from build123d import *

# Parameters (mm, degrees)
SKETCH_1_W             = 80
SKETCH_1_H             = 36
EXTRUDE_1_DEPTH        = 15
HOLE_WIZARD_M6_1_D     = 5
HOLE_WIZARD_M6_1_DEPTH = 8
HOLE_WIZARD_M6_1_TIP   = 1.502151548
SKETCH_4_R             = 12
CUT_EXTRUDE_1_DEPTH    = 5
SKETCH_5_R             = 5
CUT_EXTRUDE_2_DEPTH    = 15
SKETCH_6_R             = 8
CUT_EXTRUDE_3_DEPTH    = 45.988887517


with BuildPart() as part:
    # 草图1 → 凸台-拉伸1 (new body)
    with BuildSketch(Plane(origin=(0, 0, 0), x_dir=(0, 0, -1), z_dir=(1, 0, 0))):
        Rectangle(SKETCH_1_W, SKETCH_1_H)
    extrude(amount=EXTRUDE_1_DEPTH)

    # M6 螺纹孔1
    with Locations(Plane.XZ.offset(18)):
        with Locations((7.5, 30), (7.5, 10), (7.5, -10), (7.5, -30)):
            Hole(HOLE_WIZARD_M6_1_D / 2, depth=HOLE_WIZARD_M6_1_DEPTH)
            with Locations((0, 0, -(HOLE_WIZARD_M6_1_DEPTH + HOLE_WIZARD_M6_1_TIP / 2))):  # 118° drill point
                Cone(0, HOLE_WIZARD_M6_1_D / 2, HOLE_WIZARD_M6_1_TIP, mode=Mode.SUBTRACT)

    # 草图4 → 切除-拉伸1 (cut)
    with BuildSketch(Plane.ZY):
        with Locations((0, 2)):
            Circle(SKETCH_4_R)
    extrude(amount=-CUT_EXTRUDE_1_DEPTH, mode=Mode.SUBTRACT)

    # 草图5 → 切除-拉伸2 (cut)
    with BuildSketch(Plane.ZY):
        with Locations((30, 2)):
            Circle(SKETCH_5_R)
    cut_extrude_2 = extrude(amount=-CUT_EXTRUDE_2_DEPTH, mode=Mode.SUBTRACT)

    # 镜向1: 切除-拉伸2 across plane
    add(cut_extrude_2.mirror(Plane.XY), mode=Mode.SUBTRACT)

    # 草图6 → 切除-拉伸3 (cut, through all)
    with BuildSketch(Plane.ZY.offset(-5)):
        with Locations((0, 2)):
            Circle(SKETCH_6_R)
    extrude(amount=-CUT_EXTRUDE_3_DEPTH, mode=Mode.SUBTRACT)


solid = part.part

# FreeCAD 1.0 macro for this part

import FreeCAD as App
import Part
import Sketcher

V = App.Vector
Q = App.Units.Quantity


def add_polygon(sketch, points):
    """Adds a closed chain of lines whose ends are joined by coincident constraints."""
    first, n = sketch.GeometryCount, len(points)
    for a, b in zip(points, points[1:] + points[:1]):
        sketch.addGeometry(Part.LineSegment(App.Vector(*a, 0), App.Vector(*b, 0)), False)
    for i in range(n):
        sketch.addConstraint(Sketcher.Constraint("Coincident", first + i, 2, first + (i + 1) % n, 1))

doc = App.newDocument("Part")
body = doc.addObject("PartDesign::Body", "Body")

# Sketch on YZ plane
sketch1 = body.newObject("Sketcher::SketchObject", "Sketch")
sketch1.AttachmentSupport = (doc.getObject("YZ_Plane"), [""])
sketch1.MapMode = "FlatFace"
add_polygon(sketch1, [(18, 40), (-18, 40), (-18, -40), (18, -40)])  # lines 0-3
sketch1.addConstraint(Sketcher.Constraint("Horizontal", 0))
sketch1.addConstraint(Sketcher.Constraint("Vertical", 1))
sketch1.addConstraint(Sketcher.Constraint("Horizontal", 2))
sketch1.addConstraint(Sketcher.Constraint("Vertical", 3))
sketch1.addConstraint(Sketcher.Constraint("Symmetric", 0, 2, 2, 2, -1, 1))
sketch1.addConstraint(Sketcher.Constraint("DistanceX", 0, 2, 0, 1, Q("36 mm")))
sketch1.addConstraint(Sketcher.Constraint("DistanceY", 1, 2, 1, 1, Q("80 mm")))
pad1 = body.newObject("PartDesign::Pad", "Pad")
pad1.Profile = sketch1
pad1.Length = 15

# Sketch on XZ plane
sketch2 = body.newObject("Sketcher::SketchObject", "Sketch001")
sketch2.AttachmentSupport = (doc.getObject("XZ_Plane"), [""])
sketch2.MapMode = "FlatFace"
sketch2.AttachmentOffset = App.Placement(V(0, 0, 18), App.Rotation())
sketch2.addGeometry(Part.Circle(V(7.5, 30, 0), V(0, 0, 1), 2.5), False)
sketch2.addGeometry(Part.Circle(V(7.5, 10, 0), V(0, 0, 1), 2.5), False)
sketch2.addGeometry(Part.Circle(V(7.5, -10, 0), V(0, 0, 1), 2.5), False)
sketch2.addGeometry(Part.Circle(V(7.5, -30, 0), V(0, 0, 1), 2.5), False)
sketch2.addConstraint(Sketcher.Constraint("Equal", 0, 1))
sketch2.addConstraint(Sketcher.Constraint("Equal", 1, 2))
sketch2.addConstraint(Sketcher.Constraint("Equal", 2, 3))
sketch2.addConstraint(Sketcher.Constraint("Symmetric", 1, 3, 2, 3, -1))
sketch2.addConstraint(Sketcher.Constraint("Symmetric", 0, 3, 3, 3, -1))
sketch2.addConstraint(Sketcher.Constraint("Vertical", 0, 3, 1, 3))
sketch2.addConstraint(Sketcher.Constraint("Diameter", 0, Q("5 mm")))
sketch2.addConstraint(Sketcher.Constraint("DistanceY", -1, 1, 0, 3, Q("30 mm")))
sketch2.addConstraint(Sketcher.Constraint("DistanceY", -1, 1, 1, 3, Q("10 mm")))
sketch2.addConstraint(Sketcher.Constraint("DistanceX", -1, 1, 0, 3, Q("7.5 mm")))
doc.recompute()
hole = body.newObject("PartDesign::Hole", "Hole")
hole.Profile = sketch2
hole.ThreadType = "None"
hole.Diameter = 5
hole.DepthType = "Dimension"
hole.Depth = 8
hole.DrillPoint = "Angled"
hole.DrillPointAngle = 118

# Sketch on YZ plane
sketch3 = body.newObject("Sketcher::SketchObject", "Sketch002")
sketch3.AttachmentSupport = (doc.getObject("YZ_Plane"), [""])
sketch3.MapMode = "FlatFace"
sketch3.addGeometry(Part.Circle(V(2, 0, 0), V(0, 0, 1), 12), False)
sketch3.addConstraint(Sketcher.Constraint("PointOnObject", 0, 3, -1))
sketch3.addConstraint(Sketcher.Constraint("Diameter", 0, Q("24 mm")))
sketch3.addConstraint(Sketcher.Constraint("DistanceX", -1, 1, 0, 3, Q("2 mm")))
pocket1 = body.newObject("PartDesign::Pocket", "Pocket")
pocket1.Profile = sketch3
pocket1.Length = 5
pocket1.Reversed = True

# Sketch on YZ plane
sketch4 = body.newObject("Sketcher::SketchObject", "Sketch003")
sketch4.AttachmentSupport = (doc.getObject("YZ_Plane"), [""])
sketch4.MapMode = "FlatFace"
sketch4.addGeometry(Part.Circle(V(2, 30, 0), V(0, 0, 1), 5), False)
sketch4.addConstraint(Sketcher.Constraint("Diameter", 0, Q("10 mm")))
sketch4.addConstraint(Sketcher.Constraint("DistanceX", -1, 1, 0, 3, Q("2 mm")))
sketch4.addConstraint(Sketcher.Constraint("DistanceY", -1, 1, 0, 3, Q("30 mm")))
pocket2 = body.newObject("PartDesign::Pocket", "Pocket001")
pocket2.Profile = sketch4
pocket2.Length = 15
pocket2.Reversed = True
doc.recompute()

mirrored = body.newObject("PartDesign::Mirrored", "Mirrored")
mirrored.Originals = [pocket2]
mirrored.MirrorPlane = (doc.getObject("XY_Plane"), [""])
body.Tip = mirrored

# Sketch on YZ plane
sketch5 = body.newObject("Sketcher::SketchObject", "Sketch004")
sketch5.AttachmentSupport = (doc.getObject("YZ_Plane"), [""])
sketch5.MapMode = "FlatFace"
sketch5.AttachmentOffset = App.Placement(V(0, 0, 5), App.Rotation())
sketch5.addGeometry(Part.Circle(V(2, 0, 0), V(0, 0, 1), 8), False)
sketch5.addConstraint(Sketcher.Constraint("PointOnObject", 0, 3, -1))
sketch5.addConstraint(Sketcher.Constraint("Diameter", 0, Q("16 mm")))
sketch5.addConstraint(Sketcher.Constraint("DistanceX", -1, 1, 0, 3, Q("2 mm")))
pocket3 = body.newObject("PartDesign::Pocket", "Pocket002")
pocket3.Profile = sketch5
pocket3.Type = "ThroughAll"
pocket3.Reversed = True

doc.recompute()
